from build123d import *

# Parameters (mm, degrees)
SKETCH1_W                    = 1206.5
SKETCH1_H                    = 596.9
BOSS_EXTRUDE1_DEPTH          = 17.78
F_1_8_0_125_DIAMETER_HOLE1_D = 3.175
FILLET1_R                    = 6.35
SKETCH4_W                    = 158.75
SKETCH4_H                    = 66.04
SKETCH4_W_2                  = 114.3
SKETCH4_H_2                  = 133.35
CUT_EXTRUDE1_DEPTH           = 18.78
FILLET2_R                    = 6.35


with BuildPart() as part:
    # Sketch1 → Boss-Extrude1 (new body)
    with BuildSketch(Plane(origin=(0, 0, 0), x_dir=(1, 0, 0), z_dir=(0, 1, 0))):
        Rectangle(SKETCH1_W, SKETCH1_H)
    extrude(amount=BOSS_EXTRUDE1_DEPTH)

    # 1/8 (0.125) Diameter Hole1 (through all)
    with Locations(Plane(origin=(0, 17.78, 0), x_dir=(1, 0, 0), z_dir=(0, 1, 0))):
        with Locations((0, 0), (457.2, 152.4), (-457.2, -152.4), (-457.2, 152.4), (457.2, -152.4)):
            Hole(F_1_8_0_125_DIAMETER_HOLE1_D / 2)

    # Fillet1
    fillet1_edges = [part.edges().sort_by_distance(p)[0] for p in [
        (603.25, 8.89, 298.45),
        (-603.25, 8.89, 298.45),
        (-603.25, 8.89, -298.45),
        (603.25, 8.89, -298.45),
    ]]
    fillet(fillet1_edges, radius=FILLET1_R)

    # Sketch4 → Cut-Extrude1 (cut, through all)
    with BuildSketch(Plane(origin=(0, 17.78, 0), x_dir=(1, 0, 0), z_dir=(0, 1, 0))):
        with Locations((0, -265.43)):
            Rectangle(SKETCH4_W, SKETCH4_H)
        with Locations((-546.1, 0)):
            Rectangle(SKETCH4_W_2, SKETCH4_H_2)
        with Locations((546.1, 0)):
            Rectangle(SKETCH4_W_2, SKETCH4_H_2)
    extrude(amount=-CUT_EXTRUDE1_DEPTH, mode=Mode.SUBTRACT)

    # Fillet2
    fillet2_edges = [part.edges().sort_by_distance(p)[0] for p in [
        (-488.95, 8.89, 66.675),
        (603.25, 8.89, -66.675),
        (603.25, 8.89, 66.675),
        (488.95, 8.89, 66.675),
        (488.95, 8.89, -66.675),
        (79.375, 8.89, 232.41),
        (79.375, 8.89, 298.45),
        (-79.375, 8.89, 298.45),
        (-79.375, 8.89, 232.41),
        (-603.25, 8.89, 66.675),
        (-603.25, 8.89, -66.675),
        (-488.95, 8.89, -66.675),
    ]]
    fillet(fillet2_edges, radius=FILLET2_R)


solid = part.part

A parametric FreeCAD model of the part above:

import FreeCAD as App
import Part
import Sketcher
Q = App.Units.Quantity


def edges_at(feature, points):
    """Names of the edges that pass closest to the given points."""
    edges = feature.Shape.Edges
    near = lambda p: min(range(len(edges)), key=lambda i: edges[i].distToShape(Part.Vertex(*p))[0])
    return sorted({f"Edge{near(p) + 1}" for p in points})

doc = App.newDocument("Part")
body = doc.addObject("PartDesign::Body", "Body")

# Sketch on XZ plane
sketch1 = body.newObject("Sketcher::SketchObject", "Sketch")
sketch1.AttachmentSupport = (doc.getObject("XZ_Plane"), [""])
sketch1.MapMode = "FlatFace"
sketch1.addGeometry(Part.LineSegment(App.Vector(-603.25, -298.45, 0), App.Vector(-603.25, 298.45, 0)), False)
sketch1.addGeometry(Part.LineSegment(App.Vector(-603.25, 298.45, 0), App.Vector(603.25, 298.45, 0)), False)
sketch1.addGeometry(Part.LineSegment(App.Vector(603.25, 298.45, 0), App.Vector(603.25, -298.45, 0)), False)
sketch1.addGeometry(Part.LineSegment(App.Vector(603.25, -298.45, 0), App.Vector(-603.25, -298.45, 0)), False)
sketch1.addConstraint(Sketcher.Constraint("Coincident", 0, 2, 1, 1))
sketch1.addConstraint(Sketcher.Constraint("Coincident", 1, 2, 2, 1))
sketch1.addConstraint(Sketcher.Constraint("Coincident", 2, 2, 3, 1))
sketch1.addConstraint(Sketcher.Constraint("Coincident", 3, 2, 0, 1))
sketch1.addConstraint(Sketcher.Constraint("Vertical", 0))
sketch1.addConstraint(Sketcher.Constraint("Horizontal", 1))
sketch1.addConstraint(Sketcher.Constraint("Vertical", 2))
sketch1.addConstraint(Sketcher.Constraint("Horizontal", 3))
sketch1.addConstraint(Sketcher.Constraint("Symmetric", 0, 2, 2, 2, -1, 1))
sketch1.addConstraint(Sketcher.Constraint("DistanceX", 1, 1, 1, 2, Q("47.5 in")))
sketch1.addConstraint(Sketcher.Constraint("DistanceY", 0, 1, 0, 2, Q("23.5 in")))
pad1 = body.newObject("PartDesign::Pad", "Pad")
pad1.Profile = sketch1
pad1.Length = Q("0.7 in")
pad1.Reversed = True

# Sketch on XZ plane
sketch2 = body.newObject("Sketcher::SketchObject", "Sketch001")
sketch2.AttachmentSupport = (doc.getObject("XZ_Plane"), [""])
sketch2.MapMode = "FlatFace"
sketch2.AttachmentOffset = App.Placement(App.Vector(0, 0, -0.7 * 25.4), App.Rotation())
sketch2.addGeometry(Part.Circle(App.Vector(0, 0, 0), App.Vector(0, 0, 1), 1.5875), False)
sketch2.addGeometry(Part.Circle(App.Vector(457.2, -152.4, 0), App.Vector(0, 0, 1), 1.5875), False)
sketch2.addGeometry(Part.Circle(App.Vector(-457.2, 152.4, 0), App.Vector(0, 0, 1), 1.5875), False)
sketch2.addGeometry(Part.Circle(App.Vector(-457.2, -152.4, 0), App.Vector(0, 0, 1), 1.5875), False)
sketch2.addGeometry(Part.Circle(App.Vector(457.2, 152.4, 0), App.Vector(0, 0, 1), 1.5875), False)
sketch2.addConstraint(Sketcher.Constraint("Coincident", 0, 3, -1, 1))
sketch2.addConstraint(Sketcher.Constraint("Equal", 0, 1))
sketch2.addConstraint(Sketcher.Constraint("Equal", 1, 2))
sketch2.addConstraint(Sketcher.Constraint("Equal", 2, 3))
sketch2.addConstraint(Sketcher.Constraint("Equal", 3, 4))
sketch2.addConstraint(Sketcher.Constraint("Symmetric", 1, 3, 2, 3, -1, 1))
sketch2.addConstraint(Sketcher.Constraint("Symmetric", 3, 3, 4, 3, -1, 1))
sketch2.addConstraint(Sketcher.Constraint("Symmetric", 1, 3, 3, 3, -2))
sketch2.addConstraint(Sketcher.Constraint("Diameter", 0, Q("0.125 in")))
sketch2.addConstraint(Sketcher.Constraint("DistanceX", -1, 1, 1, 3, Q("18 in")))
sketch2.addConstraint(Sketcher.Constraint("DistanceY", 1, 3, -1, 1, Q("6 in")))
doc.recompute()
hole = body.newObject("PartDesign::Hole", "Hole")
hole.Profile = sketch2
hole.ThreadType = "None"
hole.Diameter = Q("0.125 in")
hole.DepthType = "ThroughAll"
hole.Reversed = True
doc.recompute()

fillet = body.newObject("PartDesign::Fillet", "Fillet")
fillet.Base = (hole, edges_at(hole, [
    (603.25, 8.89, 298.45),
    (-603.25, 8.89, 298.45),
    (-603.25, 8.89, -298.45),
    (603.25, 8.89, -298.45),
]))
fillet.Radius = Q("0.25 in")

# Sketch on XZ plane
sketch3 = body.newObject("Sketcher::SketchObject", "Sketch002")
sketch3.AttachmentSupport = (doc.getObject("XZ_Plane"), [""])
sketch3.MapMode = "FlatFace"
sketch3.AttachmentOffset = App.Placement(App.Vector(0, 0, -0.7 * 25.4), App.Rotation())
sketch3.addGeometry(Part.LineSegment(App.Vector(-79.375, 232.41, 0), App.Vector(-79.375, 298.45, 0)), False)
sketch3.addGeometry(Part.LineSegment(App.Vector(-79.375, 298.45, 0), App.Vector(79.375, 298.45, 0)), False)
sketch3.addGeometry(Part.LineSegment(App.Vector(79.375, 298.45, 0), App.Vector(79.375, 232.41, 0)), False)
sketch3.addGeometry(Part.LineSegment(App.Vector(79.375, 232.41, 0), App.Vector(-79.375, 232.41, 0)), False)
sketch3.addGeometry(Part.LineSegment(App.Vector(-603.25, -66.675, 0), App.Vector(-603.25, 66.675, 0)), False)
sketch3.addGeometry(Part.LineSegment(App.Vector(-603.25, 66.675, 0), App.Vector(-488.95, 66.675, 0)), False)
sketch3.addGeometry(Part.LineSegment(App.Vector(-488.95, 66.675, 0), App.Vector(-488.95, -66.675, 0)), False)
sketch3.addGeometry(Part.LineSegment(App.Vector(-488.95, -66.675, 0), App.Vector(-603.25, -66.675, 0)), False)
sketch3.addGeometry(Part.LineSegment(App.Vector(488.95, -66.675, 0), App.Vector(488.95, 66.675, 0)), False)
sketch3.addGeometry(Part.LineSegment(App.Vector(488.95, 66.675, 0), App.Vector(603.25, 66.675, 0)), False)
sketch3.addGeometry(Part.LineSegment(App.Vector(603.25, 66.675, 0), App.Vector(603.25, -66.675, 0)), False)
sketch3.addGeometry(Part.LineSegment(App.Vector(603.25, -66.675, 0), App.Vector(488.95, -66.675, 0)), False)
sketch3.addConstraint(Sketcher.Constraint("Coincident", 0, 2, 1, 1))
sketch3.addConstraint(Sketcher.Constraint("Coincident", 1, 2, 2, 1))
sketch3.addConstraint(Sketcher.Constraint("Coincident", 2, 2, 3, 1))
sketch3.addConstraint(Sketcher.Constraint("Coincident", 3, 2, 0, 1))
sketch3.addConstraint(Sketcher.Constraint("Coincident", 4, 2, 5, 1))
sketch3.addConstraint(Sketcher.Constraint("Coincident", 5, 2, 6, 1))
sketch3.addConstraint(Sketcher.Constraint("Coincident", 6, 2, 7, 1))
sketch3.addConstraint(Sketcher.Constraint("Coincident", 7, 2, 4, 1))
sketch3.addConstraint(Sketcher.Constraint("Coincident", 8, 2, 9, 1))
sketch3.addConstraint(Sketcher.Constraint("Coincident", 9, 2, 10, 1))
sketch3.addConstraint(Sketcher.Constraint("Coincident", 10, 2, 11, 1))
sketch3.addConstraint(Sketcher.Constraint("Coincident", 11, 2, 8, 1))
sketch3.addConstraint(Sketcher.Constraint("Vertical", 0))
sketch3.addConstraint(Sketcher.Constraint("Horizontal", 1))
sketch3.addConstraint(Sketcher.Constraint("Vertical", 2))
sketch3.addConstraint(Sketcher.Constraint("Horizontal", 3))
sketch3.addConstraint(Sketcher.Constraint("Vertical", 4))
sketch3.addConstraint(Sketcher.Constraint("Horizontal", 5))
sketch3.addConstraint(Sketcher.Constraint("Vertical", 6))
sketch3.addConstraint(Sketcher.Constraint("Horizontal", 7))
sketch3.addConstraint(Sketcher.Constraint("Vertical", 8))
sketch3.addConstraint(Sketcher.Constraint("Horizontal", 9))
sketch3.addConstraint(Sketcher.Constraint("Vertical", 10))
sketch3.addConstraint(Sketcher.Constraint("Horizontal", 11))
sketch3.addConstraint(Sketcher.Constraint("Symmetric", 6, 2, 8, 2, -1, 1))
sketch3.addConstraint(Sketcher.Constraint("Symmetric", 4, 2, 10, 2, -1, 1))
sketch3.addConstraint(Sketcher.Constraint("Horizontal", 5, 2, 8, 2))
sketch3.addConstraint(Sketcher.Constraint("DistanceX", 5, 1, 5, 2, Q("4.5 in")))
sketch3.addConstraint(Sketcher.Constraint("DistanceY", 0, 1, 0, 2, Q("2.6 in")))
sketch3.addConstraint(Sketcher.Constraint("DistanceX", 1, 1, 1, 2, Q("6.25 in")))
sketch3.addConstraint(Sketcher.Constraint("DistanceY", 4, 1, 4, 2, Q("5.25 in")))
sketch3.addConstraint(Sketcher.Constraint("DistanceX", 5, 2, 8, 2, Q("38.5 in")))
sketch3.addConstraint(Sketcher.Constraint("DistanceY", -1, 1, 0, 2, Q("11.75 in")))
sketch3.addConstraint(Sketcher.Constraint("DistanceX", 0, 2, -1, 1, Q("3.125 in")))
pocket1 = body.newObject("PartDesign::Pocket", "Pocket")
pocket1.Profile = sketch3
pocket1.Type = "ThroughAll"
pocket1.Reversed = True
doc.recompute()

fillet2 = body.newObject("PartDesign::Fillet", "Fillet001")
fillet2.Base = (pocket1, edges_at(pocket1, [
    (-488.95, 8.89, 66.675),
    (603.25, 8.89, -66.675),
    (603.25, 8.89, 66.675),
    (488.95, 8.89, 66.675),
    (488.95, 8.89, -66.675),
    (79.375, 8.89, 232.41),
    (79.375, 8.89, 298.45),
    (-79.375, 8.89, 298.45),
    (-79.375, 8.89, 232.41),
    (-603.25, 8.89, 66.675),
    (-603.25, 8.89, -66.675),
    (-488.95, 8.89, -66.675),
]))
fillet2.Radius = Q("0.25 in")

doc.recompute()
